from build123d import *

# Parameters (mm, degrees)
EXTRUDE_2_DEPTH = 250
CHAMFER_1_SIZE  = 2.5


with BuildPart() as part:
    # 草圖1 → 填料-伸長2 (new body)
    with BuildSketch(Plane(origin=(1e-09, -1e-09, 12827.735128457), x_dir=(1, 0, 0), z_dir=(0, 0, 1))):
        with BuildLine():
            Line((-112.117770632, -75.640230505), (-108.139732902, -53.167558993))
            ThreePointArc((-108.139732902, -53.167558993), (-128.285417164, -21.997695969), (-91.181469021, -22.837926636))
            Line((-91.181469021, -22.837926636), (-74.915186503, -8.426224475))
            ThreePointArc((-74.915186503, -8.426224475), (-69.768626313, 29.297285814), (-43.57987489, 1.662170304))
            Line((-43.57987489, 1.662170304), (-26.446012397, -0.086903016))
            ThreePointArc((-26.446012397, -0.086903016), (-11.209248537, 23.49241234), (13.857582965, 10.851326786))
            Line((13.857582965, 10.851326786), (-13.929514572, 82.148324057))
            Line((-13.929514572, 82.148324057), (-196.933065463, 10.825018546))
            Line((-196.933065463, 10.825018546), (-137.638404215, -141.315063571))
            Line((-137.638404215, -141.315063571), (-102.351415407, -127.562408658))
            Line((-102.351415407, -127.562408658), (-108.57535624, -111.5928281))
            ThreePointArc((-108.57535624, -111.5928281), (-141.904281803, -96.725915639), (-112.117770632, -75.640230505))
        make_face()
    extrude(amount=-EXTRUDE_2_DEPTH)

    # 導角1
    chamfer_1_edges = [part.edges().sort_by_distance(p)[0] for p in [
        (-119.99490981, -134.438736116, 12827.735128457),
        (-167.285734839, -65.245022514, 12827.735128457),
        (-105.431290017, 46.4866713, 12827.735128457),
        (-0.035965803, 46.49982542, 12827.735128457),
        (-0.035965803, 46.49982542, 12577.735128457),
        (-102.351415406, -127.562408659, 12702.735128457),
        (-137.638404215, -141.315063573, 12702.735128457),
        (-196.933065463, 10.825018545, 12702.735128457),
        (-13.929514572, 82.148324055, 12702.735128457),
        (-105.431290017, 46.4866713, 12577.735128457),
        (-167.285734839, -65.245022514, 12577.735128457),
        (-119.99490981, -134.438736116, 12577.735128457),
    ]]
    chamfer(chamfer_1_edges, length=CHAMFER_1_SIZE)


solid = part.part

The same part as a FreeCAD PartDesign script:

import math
import FreeCAD as App
import Part
import Sketcher

V = App.Vector


def edges_at(feature, points):
    """Names of the edges that pass closest to the given points."""
    edges = feature.Shape.Edges
    near = lambda p: min(range(len(edges)), key=lambda i: edges[i].distToShape(Part.Vertex(*p))[0])
    return sorted({f"Edge{near(p) + 1}" for p in points})

doc = App.newDocument("Part")
body = doc.addObject("PartDesign::Body", "Body")

# Sketch on XY plane
sketch1 = body.newObject("Sketcher::SketchObject", "Sketch")
sketch1.AttachmentSupport = (doc.getObject("XY_Plane"), [""])
sketch1.MapMode = "FlatFace"
sketch1.AttachmentOffset = App.Placement(V(0, 0, 12827.735128), App.Rotation())
sketch1.addGeometry([
    Part.LineSegment(V(-112.117771, -75.640231, 0), V(-108.139733, -53.167559, 0)),  # 0
    Part.ArcOfCircle(Part.Circle(V(-109.956011, -32.246251, 0), V(0, 0, 1), 21), math.radians(26.616428), math.radians(274.961679)),  # 1
    Part.LineSegment(V(-91.181469, -22.837927, 0), V(-74.915187, -8.426224, 0)),  # 2
    Part.ArcOfCircle(Part.Circle(V(-63.298892, 9.201806, 0), V(0, 0, 1), 21.111271), math.radians(-20.924531), math.radians(236.616428)),  # 3
    Part.LineSegment(V(-43.579875, 1.66217, 0), V(-26.446012, -0.086903, 0)),  # 4
    Part.ArcOfCircle(Part.Circle(V(-5.708902, 3.225538, 0), V(0, 0, 1), 21), math.radians(21.292717), math.radians(189.075469)),  # 5
    Part.LineSegment(V(13.857583, 10.851327, 0), V(-13.929515, 82.148324, 0)),  # 6
    Part.LineSegment(V(-13.929515, 82.148324, 0), V(-196.933065, 10.825019, 0)),  # 7
    Part.LineSegment(V(-196.933065, 10.825019, 0), V(-137.638404, -141.315064, 0)),  # 8
    Part.LineSegment(V(-137.638404, -141.315064, 0), V(-102.351415, -127.562409, 0)),  # 9
    Part.LineSegment(V(-102.351415, -127.562409, 0), V(-108.575356, -111.592828, 0)),  # 10
    Part.ArcOfCircle(Part.Circle(V(-121.005482, -94.666754, 0), V(0, 0, 1), 21), math.radians(64.961679), math.radians(306.292717)),  # 11
], False)
sketch1.addConstraint([
    Sketcher.Constraint("Coincident", 0, 2, 1, 2),
    Sketcher.Constraint("Coincident", 1, 1, 2, 1),
    Sketcher.Constraint("Coincident", 2, 2, 3, 2),
    Sketcher.Constraint("Coincident", 3, 1, 4, 1),
    Sketcher.Constraint("Coincident", 4, 2, 5, 2),
    Sketcher.Constraint("Tangent", 5, 1, 6, 1),
    Sketcher.Constraint("Coincident", 6, 2, 7, 1),
    Sketcher.Constraint("Coincident", 7, 2, 8, 1),
    Sketcher.Constraint("Coincident", 8, 2, 9, 1),
    Sketcher.Constraint("Coincident", 9, 2, 10, 1),
    Sketcher.Constraint("Coincident", 10, 2, 11, 2),
    Sketcher.Constraint("Coincident", 11, 1, 0, 1),
    Sketcher.Constraint("Equal", 1, 5),
    Sketcher.Constraint("Equal", 5, 11),
    Sketcher.Constraint("Perpendicular", 6, 7),
    Sketcher.Constraint("Perpendicular", 7, 8),
    Sketcher.Constraint("Perpendicular", 8, 9),
    Sketcher.Constraint("Perpendicular", 9, 10),
    Sketcher.Constraint("Radius", 1, 21.0),
    Sketcher.Constraint("Radius", 3, 21.111271),
    Sketcher.Constraint("Distance", 8, 163.28644),
    Sketcher.Constraint("DistanceX", 1, 3, -1, 1, 109.956011),
    Sketcher.Constraint("DistanceY", 1, 3, -1, 1, 32.246251),
    Sketcher.Constraint("DistanceY", -1, 1, 5, 3, 3.225538),
    Sketcher.Constraint("DistanceX", 11, 3, -1, 1, 121.005482),
    Sketcher.Constraint("DistanceY", 0, 2, -1, 1, 53.167559),
    Sketcher.Constraint("DistanceX", 1, 1, -1, 1, 91.181469),
    Sketcher.Constraint("DistanceY", -1, 1, 3, 1, 1.66217),
    Sketcher.Constraint("DistanceY", -1, 1, 7, 2, 10.825019),
    Sketcher.Constraint("DistanceY", 9, 2, -1, 1, 127.562409),
    Sketcher.Constraint("DistanceY", 10, 2, -1, 1, 111.592828),
    Sketcher.Constraint("DistanceX", 11, 1, -1, 1, 112.117771),
    Sketcher.Constraint("DistanceY", 11, 1, -1, 1, 75.640231),
    Sketcher.Constraint("DistanceX", 1, 3, 3, 3, 46.657119),
    Sketcher.Constraint("DistanceX", 3, 3, 5, 3, 57.58999),
    Sketcher.Constraint("DistanceY", 5, 3, 3, 3, 5.976268),
    Sketcher.Constraint("DistanceY", 2, 2, 3, 3, 17.628031),
    Sketcher.Constraint("DistanceX", 4, 2, 5, 3, 20.73711),
    Sketcher.Constraint("DistanceY", 5, 3, 5, 1, 7.625789),
])
pad1 = body.newObject("PartDesign::Pad", "Pad")
pad1.Profile = sketch1
pad1.Length = 250
pad1.Reversed = True
doc.recompute()

chamfer = body.newObject("PartDesign::Chamfer", "Chamfer")
chamfer.Base = (pad1, edges_at(pad1, [
    (-119.995, -134.439, 12827.735),
    (-167.286, -65.245, 12827.735),
    (-105.431, 46.487, 12827.735),
    (-0.036, 46.5, 12827.735),
    (-0.036, 46.5, 12577.735),
    (-102.351, -127.562, 12702.735),
    (-137.638, -141.315, 12702.735),
    (-196.933, 10.825, 12702.735),
    (-13.93, 82.148, 12702.735),
    (-105.431, 46.487, 12577.735),
    (-167.286, -65.245, 12577.735),
    (-119.995, -134.439, 12577.735),
]))
chamfer.Size = 2.5

doc.recompute()
